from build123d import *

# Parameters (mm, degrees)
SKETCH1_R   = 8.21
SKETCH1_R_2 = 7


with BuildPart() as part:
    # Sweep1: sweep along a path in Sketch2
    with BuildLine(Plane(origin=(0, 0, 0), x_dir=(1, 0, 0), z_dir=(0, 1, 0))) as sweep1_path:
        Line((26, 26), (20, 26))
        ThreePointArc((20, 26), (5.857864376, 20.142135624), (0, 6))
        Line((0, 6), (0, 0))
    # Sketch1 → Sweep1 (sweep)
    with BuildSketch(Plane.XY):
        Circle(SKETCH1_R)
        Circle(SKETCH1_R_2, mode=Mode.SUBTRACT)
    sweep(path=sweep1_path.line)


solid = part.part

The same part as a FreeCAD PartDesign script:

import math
import FreeCAD as App
import Part
import Sketcher
from FreeCAD import Vector
Q = App.Units.Quantity

doc = App.newDocument("Part")
body = doc.addObject("PartDesign::Body", "Body")

sketch1 = body.newObject("Sketcher::SketchObject", "Sketch")
sketch1.AttachmentSupport = (doc.getObject("XY_Plane"), [""])
sketch1.MapMode = "FlatFace"
sketch1.addGeometry([
    Part.Circle(Vector(0, 0, 0), Vector(0, 0, 1), 8.21),
    Part.Circle(Vector(0, 0, 0), Vector(0, 0, 1), 7),
], False)
sketch1.addConstraint([
    Sketcher.Constraint("Coincident", 0, 3, -1, 1),
    Sketcher.Constraint("Coincident", 1, 3, -1, 1),
    Sketcher.Constraint("Diameter", 1, Q("14 mm")),
    Sketcher.Constraint("Diameter", 0, Q("16.42 mm")),
])

sketch2 = body.newObject("Sketcher::SketchObject", "Sketch001")
sketch2.AttachmentSupport = (doc.getObject("XZ_Plane"), [""])
sketch2.MapMode = "FlatFace"
sketch2.addGeometry([
    Part.LineSegment(Vector(26, -26, 0), Vector(20, -26, 0)),
    Part.ArcOfCircle(Part.Circle(Vector(20, -6, 0), Vector(0, 0, 1), 20), math.radians(180), math.radians(270)),
    Part.LineSegment(Vector(0, -6, 0), Vector(0, 0, 0)),
], False)
sketch2.addConstraint([
    Sketcher.Constraint("Tangent", 0, 2, 1, 2),
    Sketcher.Constraint("Tangent", 1, 1, 2, 1),
    Sketcher.Constraint("Horizontal", 0),
    Sketcher.Constraint("Vertical", 2),
    Sketcher.Constraint("Coincident", 2, 2, -1, 1),
    Sketcher.Constraint("Equal", 0, 2),
    Sketcher.Constraint("Radius", 1, Q("20 mm")),
    Sketcher.Constraint("DistanceX", 0, 2, 0, 1, Q("6 mm")),
])
doc.recompute()

additivepipe = body.newObject("PartDesign::AdditivePipe", "AdditivePipe")
additivepipe.Profile = sketch1
additivepipe.Spine = (sketch2, ["Edge1", "Edge2", "Edge3"])

doc.recompute()
